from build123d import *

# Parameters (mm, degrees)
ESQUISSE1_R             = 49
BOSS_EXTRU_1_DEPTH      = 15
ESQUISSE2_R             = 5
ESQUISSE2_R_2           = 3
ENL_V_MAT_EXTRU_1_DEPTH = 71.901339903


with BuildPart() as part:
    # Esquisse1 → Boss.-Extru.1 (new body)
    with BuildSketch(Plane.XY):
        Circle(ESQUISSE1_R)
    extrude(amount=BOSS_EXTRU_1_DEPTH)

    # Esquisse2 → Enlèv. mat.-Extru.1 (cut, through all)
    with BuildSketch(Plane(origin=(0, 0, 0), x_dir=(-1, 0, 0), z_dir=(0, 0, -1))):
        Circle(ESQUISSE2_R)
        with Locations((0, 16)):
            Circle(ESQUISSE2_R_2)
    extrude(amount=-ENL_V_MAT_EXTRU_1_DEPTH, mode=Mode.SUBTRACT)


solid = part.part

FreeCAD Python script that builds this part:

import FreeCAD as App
import Part
import Sketcher

V = App.Vector
Q = App.Units.Quantity

doc = App.newDocument("Part")
body = doc.addObject("PartDesign::Body", "Body")

sketch1 = doc.addObject("Sketcher::SketchObject", "Sketch")
body.addObject(sketch1)
sketch1.AttachmentSupport = (doc.XY_Plane, [""])
sketch1.MapMode = "FlatFace"
sketch1.addGeometry(Part.Circle(V(0, 0, 0), V(0, 0, 1), 49), False)
sketch1.addConstraint(Sketcher.Constraint("Coincident", 0, 3, -1, 1))
sketch1.addConstraint(Sketcher.Constraint("Diameter", 0, Q("98 mm")))
pad1 = doc.addObject("PartDesign::Pad", "Pad")
body.addObject(pad1)
pad1.Profile = sketch1
pad1.Length = 15

sketch2 = doc.addObject("Sketcher::SketchObject", "Sketch001")
body.addObject(sketch2)
sketch2.AttachmentSupport = (doc.XY_Plane, [""])
sketch2.MapMode = "FlatFace"
sketch2.addGeometry(Part.Circle(V(0, 0, 0), V(0, 0, 1), 5), False)
sketch2.addGeometry(Part.Circle(V(0, 16, 0), V(0, 0, 1), 3), False)
sketch2.addConstraint(Sketcher.Constraint("Coincident", 0, 3, -1, 1))
sketch2.addConstraint(Sketcher.Constraint("PointOnObject", 1, 3, -2))
sketch2.addConstraint(Sketcher.Constraint("Diameter", 0, Q("10 mm")))
sketch2.addConstraint(Sketcher.Constraint("Diameter", 1, Q("6 mm")))
sketch2.addConstraint(Sketcher.Constraint("DistanceY", -1, 1, 1, 3, Q("16 mm")))
pocket1 = doc.addObject("PartDesign::Pocket", "Pocket")
body.addObject(pocket1)
pocket1.Profile = sketch2
pocket1.Type = "ThroughAll"
pocket1.Reversed = True

doc.recompute()
